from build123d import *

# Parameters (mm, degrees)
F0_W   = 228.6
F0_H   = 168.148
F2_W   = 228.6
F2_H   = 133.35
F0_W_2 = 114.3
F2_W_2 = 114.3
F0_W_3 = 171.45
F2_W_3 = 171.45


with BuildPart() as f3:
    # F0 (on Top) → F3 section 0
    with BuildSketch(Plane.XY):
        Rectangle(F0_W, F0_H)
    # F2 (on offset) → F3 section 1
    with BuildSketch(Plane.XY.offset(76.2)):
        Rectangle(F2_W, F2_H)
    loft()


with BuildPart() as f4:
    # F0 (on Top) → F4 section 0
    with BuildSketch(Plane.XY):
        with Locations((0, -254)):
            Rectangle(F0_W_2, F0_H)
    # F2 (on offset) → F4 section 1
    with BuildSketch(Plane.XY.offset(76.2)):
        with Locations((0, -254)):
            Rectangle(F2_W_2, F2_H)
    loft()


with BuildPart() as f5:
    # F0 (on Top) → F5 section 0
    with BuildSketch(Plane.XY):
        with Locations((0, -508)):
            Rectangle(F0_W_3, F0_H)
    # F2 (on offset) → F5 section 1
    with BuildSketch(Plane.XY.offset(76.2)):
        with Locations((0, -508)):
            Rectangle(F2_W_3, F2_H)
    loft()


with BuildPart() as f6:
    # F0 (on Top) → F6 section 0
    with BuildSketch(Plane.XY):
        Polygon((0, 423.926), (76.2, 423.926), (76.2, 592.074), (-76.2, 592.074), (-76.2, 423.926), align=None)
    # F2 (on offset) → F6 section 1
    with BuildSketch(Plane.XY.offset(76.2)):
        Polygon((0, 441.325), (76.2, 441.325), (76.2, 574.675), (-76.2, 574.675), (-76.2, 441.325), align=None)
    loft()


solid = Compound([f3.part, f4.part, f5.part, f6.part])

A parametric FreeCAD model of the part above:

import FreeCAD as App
import Part
import Sketcher
from FreeCAD import Vector
Q = App.Units.Quantity


def add_polygon(sketch, points):
    """Adds a closed chain of lines whose ends are joined by coincident constraints."""
    first, n = sketch.GeometryCount, len(points)
    for a, b in zip(points, points[1:] + points[:1]):
        sketch.addGeometry(Part.LineSegment(App.Vector(*a, 0), App.Vector(*b, 0)), False)
    for i in range(n):
        sketch.addConstraint(Sketcher.Constraint("Coincident", first + i, 2, first + (i + 1) % n, 1))

doc = App.newDocument("Part")
params = doc.addObject("Spreadsheet::Sheet", "Params")
for row, (alias, value) in enumerate([
    ("sketch1_width", "9 in"),
    ("sketch1_height", "6.62 in"),
    ("sketch2_width", "9 in"),
    ("sketch2_height", "5.25 in"),
    ("sketch3_width", "4.5 in"),
    ("sketch3_height", "6.62 in"),
    ("sketch4_width", "4.5 in"),
    ("sketch4_height", "5.25 in"),
    ("sketch5_width", "6.75 in"),
    ("sketch5_height", "6.62 in"),
    ("sketch6_width", "6.75 in"),
    ("sketch6_height", "5.25 in"),
    ("sketch7_width", "6 in"),
    ("sketch7_height", "6.62 in"),
    ("sketch8_width", "6 in"),
    ("sketch8_height", "5.25 in"),
], start=1):
    params.set(f"A{row}", alias)
    params.set(f"B{row}", "=" + value)
    params.setAlias(f"B{row}", alias)

body = doc.addObject("PartDesign::Body", "Body")

# Sketch on XY plane
sketch1 = body.newObject("Sketcher::SketchObject", "Sketch")
sketch1.AttachmentSupport = (doc.getObject("XY_Plane"), [""])
sketch1.MapMode = "FlatFace"
add_polygon(sketch1, [(-114, 84), (-114, -84), (114, -84), (114, 84)])  # lines 0-3
sketch1.addConstraint([
    Sketcher.Constraint("Vertical", 0),
    Sketcher.Constraint("Horizontal", 1),
    Sketcher.Constraint("Vertical", 2),
    Sketcher.Constraint("Horizontal", 3),
    Sketcher.Constraint("Symmetric", 0, 2, 2, 2, -1, 1),
    Sketcher.Constraint("DistanceX", 1, 1, 1, 2, Q("9 in")),
    Sketcher.Constraint("DistanceY", 0, 2, 0, 1, Q("6.62 in")),
])
sketch1.setExpression("Constraints[9]", "Params.sketch1_width")
sketch1.setExpression("Constraints[10]", "Params.sketch1_height")

# Sketch on XY plane
sketch2 = body.newObject("Sketcher::SketchObject", "Sketch001")
sketch2.AttachmentSupport = (doc.getObject("XY_Plane"), [""])
sketch2.MapMode = "FlatFace"
sketch2.AttachmentOffset = App.Placement(Vector(0, 0, 3 * 25.4), App.Rotation())
add_polygon(sketch2, [(-114, 67), (-114, -67), (114, -67), (114, 67)])  # lines 0-3
sketch2.addConstraint([
    Sketcher.Constraint("Vertical", 0),
    Sketcher.Constraint("Horizontal", 1),
    Sketcher.Constraint("Vertical", 2),
    Sketcher.Constraint("Horizontal", 3),
    Sketcher.Constraint("Symmetric", 0, 2, 2, 2, -1, 1),
    Sketcher.Constraint("DistanceX", 1, 1, 1, 2, Q("9 in")),
    Sketcher.Constraint("DistanceY", 0, 2, 0, 1, Q("5.25 in")),
])
sketch2.setExpression("Constraints[9]", "Params.sketch2_width")
sketch2.setExpression("Constraints[10]", "Params.sketch2_height")

additiveloft = body.newObject("PartDesign::AdditiveLoft", "AdditiveLoft")
additiveloft.Profile = sketch1
additiveloft.Sections = [sketch2]
body2 = doc.addObject("PartDesign::Body", "Body001")

# Sketch on XY plane
sketch3 = body2.newObject("Sketcher::SketchObject", "Sketch002")
sketch3.AttachmentSupport = (doc.getObject("XY_Plane001"), [""])
sketch3.MapMode = "FlatFace"
add_polygon(sketch3, [(-57, -170), (-57, -338), (57, -338), (57, -170)])  # lines 0-3
sketch3.addConstraint([
    Sketcher.Constraint("Vertical", 0),
    Sketcher.Constraint("Horizontal", 1),
    Sketcher.Constraint("Vertical", 2),
    Sketcher.Constraint("Horizontal", 3),
    Sketcher.Constraint("DistanceX", 1, 1, 1, 2, Q("4.5 in")),
    Sketcher.Constraint("DistanceY", 0, 2, 0, 1, Q("6.62 in")),
    Sketcher.Constraint("DistanceX", 0, 2, -1, 1, Q("2.25 in")),
    Sketcher.Constraint("DistanceY", 0, 2, -1, 1, Q("13.31 in")),
])
sketch3.setExpression("Constraints[8]", "Params.sketch3_width")
sketch3.setExpression("Constraints[9]", "Params.sketch3_height")

# Sketch on XY plane
sketch4 = body2.newObject("Sketcher::SketchObject", "Sketch003")
sketch4.AttachmentSupport = (doc.getObject("XY_Plane001"), [""])
sketch4.MapMode = "FlatFace"
sketch4.AttachmentOffset = App.Placement(Vector(0, 0, 3 * 25.4), App.Rotation())
add_polygon(sketch4, [(-57, -187), (-57, -321), (57, -321), (57, -187)])  # lines 0-3
sketch4.addConstraint([
    Sketcher.Constraint("Vertical", 0),
    Sketcher.Constraint("Horizontal", 1),
    Sketcher.Constraint("Vertical", 2),
    Sketcher.Constraint("Horizontal", 3),
    Sketcher.Constraint("DistanceX", 1, 1, 1, 2, Q("4.5 in")),
    Sketcher.Constraint("DistanceY", 0, 2, 0, 1, Q("5.25 in")),
    Sketcher.Constraint("DistanceX", 0, 2, -1, 1, Q("2.25 in")),
    Sketcher.Constraint("DistanceY", 0, 2, -1, 1, Q("12.625 in")),
])
sketch4.setExpression("Constraints[8]", "Params.sketch4_width")
sketch4.setExpression("Constraints[9]", "Params.sketch4_height")

additiveloft2 = body2.newObject("PartDesign::AdditiveLoft", "AdditiveLoft001")
additiveloft2.Profile = sketch3
additiveloft2.Sections = [sketch4]
body3 = doc.addObject("PartDesign::Body", "Body002")

# Sketch on XY plane
sketch5 = body3.newObject("Sketcher::SketchObject", "Sketch004")
sketch5.AttachmentSupport = (doc.getObject("XY_Plane002"), [""])
sketch5.MapMode = "FlatFace"
add_polygon(sketch5, [(-86, -424), (-86, -592), (86, -592), (86, -424)])  # lines 0-3
sketch5.addConstraint([
    Sketcher.Constraint("Vertical", 0),
    Sketcher.Constraint("Horizontal", 1),
    Sketcher.Constraint("Vertical", 2),
    Sketcher.Constraint("Horizontal", 3),
    Sketcher.Constraint("DistanceX", 1, 1, 1, 2, Q("6.75 in")),
    Sketcher.Constraint("DistanceY", 0, 2, 0, 1, Q("6.62 in")),
    Sketcher.Constraint("DistanceY", 0, 2, -1, 1, Q("23.31 in")),
    Sketcher.Constraint("DistanceX", 0, 2, -1, 1, Q("3.375 in")),
])
sketch5.setExpression("Constraints[8]", "Params.sketch5_width")
sketch5.setExpression("Constraints[9]", "Params.sketch5_height")

# Sketch on XY plane
sketch6 = body3.newObject("Sketcher::SketchObject", "Sketch005")
sketch6.AttachmentSupport = (doc.getObject("XY_Plane002"), [""])
sketch6.MapMode = "FlatFace"
sketch6.AttachmentOffset = App.Placement(Vector(0, 0, 3 * 25.4), App.Rotation())
add_polygon(sketch6, [(-86, -441), (-86, -575), (86, -575), (86, -441)])  # lines 0-3
sketch6.addConstraint([
    Sketcher.Constraint("Vertical", 0),
    Sketcher.Constraint("Horizontal", 1),
    Sketcher.Constraint("Vertical", 2),
    Sketcher.Constraint("Horizontal", 3),
    Sketcher.Constraint("DistanceX", 1, 1, 1, 2, Q("6.75 in")),
    Sketcher.Constraint("DistanceY", 0, 2, 0, 1, Q("5.25 in")),
    Sketcher.Constraint("DistanceX", 0, 2, -1, 1, Q("3.375 in")),
    Sketcher.Constraint("DistanceY", 0, 2, -1, 1, Q("22.625 in")),
])
sketch6.setExpression("Constraints[8]", "Params.sketch6_width")
sketch6.setExpression("Constraints[9]", "Params.sketch6_height")

additiveloft3 = body3.newObject("PartDesign::AdditiveLoft", "AdditiveLoft002")
additiveloft3.Profile = sketch5
additiveloft3.Sections = [sketch6]
body4 = doc.addObject("PartDesign::Body", "Body003")

# Sketch on XY plane
sketch7 = body4.newObject("Sketcher::SketchObject", "Sketch006")
sketch7.AttachmentSupport = (doc.getObject("XY_Plane003"), [""])
sketch7.MapMode = "FlatFace"
add_polygon(sketch7, [(76, 424), (76, 592), (-76, 592), (-76, 424)])  # lines 0-3
sketch7.addConstraint([
    Sketcher.Constraint("Vertical", 0),
    Sketcher.Constraint("Horizontal", 1),
    Sketcher.Constraint("Vertical", 2),
    Sketcher.Constraint("Horizontal", 3),
    Sketcher.Constraint("DistanceX", 1, 2, 1, 1, Q("6 in")),
    Sketcher.Constraint("DistanceX", -1, 1, 0, 2, Q("3 in")),
    Sketcher.Constraint("DistanceY", 0, 1, 0, 2, Q("6.62 in")),
    Sketcher.Constraint("DistanceY", -1, 1, 0, 2, Q("23.31 in")),
])
sketch7.setExpression("Constraints[8]", "Params.sketch7_width")
sketch7.setExpression("Constraints[10]", "Params.sketch7_height")

# Sketch on XY plane
sketch8 = body4.newObject("Sketcher::SketchObject", "Sketch007")
sketch8.AttachmentSupport = (doc.getObject("XY_Plane003"), [""])
sketch8.MapMode = "FlatFace"
sketch8.AttachmentOffset = App.Placement(Vector(0, 0, 3 * 25.4), App.Rotation())
add_polygon(sketch8, [(76, 441), (76, 575), (-76, 575), (-76, 441)])  # lines 0-3
sketch8.addConstraint([
    Sketcher.Constraint("Vertical", 0),
    Sketcher.Constraint("Horizontal", 1),
    Sketcher.Constraint("Vertical", 2),
    Sketcher.Constraint("Horizontal", 3),
    Sketcher.Constraint("DistanceX", 1, 2, 1, 1, Q("6 in")),
    Sketcher.Constraint("DistanceX", -1, 1, 0, 2, Q("3 in")),
    Sketcher.Constraint("DistanceY", 0, 1, 0, 2, Q("5.25 in")),
    Sketcher.Constraint("DistanceY", -1, 1, 0, 2, Q("22.625 in")),
])
sketch8.setExpression("Constraints[8]", "Params.sketch8_width")
sketch8.setExpression("Constraints[10]", "Params.sketch8_height")

additiveloft4 = body4.newObject("PartDesign::AdditiveLoft", "AdditiveLoft003")
additiveloft4.Profile = sketch7
additiveloft4.Sections = [sketch8]

doc.recompute()
